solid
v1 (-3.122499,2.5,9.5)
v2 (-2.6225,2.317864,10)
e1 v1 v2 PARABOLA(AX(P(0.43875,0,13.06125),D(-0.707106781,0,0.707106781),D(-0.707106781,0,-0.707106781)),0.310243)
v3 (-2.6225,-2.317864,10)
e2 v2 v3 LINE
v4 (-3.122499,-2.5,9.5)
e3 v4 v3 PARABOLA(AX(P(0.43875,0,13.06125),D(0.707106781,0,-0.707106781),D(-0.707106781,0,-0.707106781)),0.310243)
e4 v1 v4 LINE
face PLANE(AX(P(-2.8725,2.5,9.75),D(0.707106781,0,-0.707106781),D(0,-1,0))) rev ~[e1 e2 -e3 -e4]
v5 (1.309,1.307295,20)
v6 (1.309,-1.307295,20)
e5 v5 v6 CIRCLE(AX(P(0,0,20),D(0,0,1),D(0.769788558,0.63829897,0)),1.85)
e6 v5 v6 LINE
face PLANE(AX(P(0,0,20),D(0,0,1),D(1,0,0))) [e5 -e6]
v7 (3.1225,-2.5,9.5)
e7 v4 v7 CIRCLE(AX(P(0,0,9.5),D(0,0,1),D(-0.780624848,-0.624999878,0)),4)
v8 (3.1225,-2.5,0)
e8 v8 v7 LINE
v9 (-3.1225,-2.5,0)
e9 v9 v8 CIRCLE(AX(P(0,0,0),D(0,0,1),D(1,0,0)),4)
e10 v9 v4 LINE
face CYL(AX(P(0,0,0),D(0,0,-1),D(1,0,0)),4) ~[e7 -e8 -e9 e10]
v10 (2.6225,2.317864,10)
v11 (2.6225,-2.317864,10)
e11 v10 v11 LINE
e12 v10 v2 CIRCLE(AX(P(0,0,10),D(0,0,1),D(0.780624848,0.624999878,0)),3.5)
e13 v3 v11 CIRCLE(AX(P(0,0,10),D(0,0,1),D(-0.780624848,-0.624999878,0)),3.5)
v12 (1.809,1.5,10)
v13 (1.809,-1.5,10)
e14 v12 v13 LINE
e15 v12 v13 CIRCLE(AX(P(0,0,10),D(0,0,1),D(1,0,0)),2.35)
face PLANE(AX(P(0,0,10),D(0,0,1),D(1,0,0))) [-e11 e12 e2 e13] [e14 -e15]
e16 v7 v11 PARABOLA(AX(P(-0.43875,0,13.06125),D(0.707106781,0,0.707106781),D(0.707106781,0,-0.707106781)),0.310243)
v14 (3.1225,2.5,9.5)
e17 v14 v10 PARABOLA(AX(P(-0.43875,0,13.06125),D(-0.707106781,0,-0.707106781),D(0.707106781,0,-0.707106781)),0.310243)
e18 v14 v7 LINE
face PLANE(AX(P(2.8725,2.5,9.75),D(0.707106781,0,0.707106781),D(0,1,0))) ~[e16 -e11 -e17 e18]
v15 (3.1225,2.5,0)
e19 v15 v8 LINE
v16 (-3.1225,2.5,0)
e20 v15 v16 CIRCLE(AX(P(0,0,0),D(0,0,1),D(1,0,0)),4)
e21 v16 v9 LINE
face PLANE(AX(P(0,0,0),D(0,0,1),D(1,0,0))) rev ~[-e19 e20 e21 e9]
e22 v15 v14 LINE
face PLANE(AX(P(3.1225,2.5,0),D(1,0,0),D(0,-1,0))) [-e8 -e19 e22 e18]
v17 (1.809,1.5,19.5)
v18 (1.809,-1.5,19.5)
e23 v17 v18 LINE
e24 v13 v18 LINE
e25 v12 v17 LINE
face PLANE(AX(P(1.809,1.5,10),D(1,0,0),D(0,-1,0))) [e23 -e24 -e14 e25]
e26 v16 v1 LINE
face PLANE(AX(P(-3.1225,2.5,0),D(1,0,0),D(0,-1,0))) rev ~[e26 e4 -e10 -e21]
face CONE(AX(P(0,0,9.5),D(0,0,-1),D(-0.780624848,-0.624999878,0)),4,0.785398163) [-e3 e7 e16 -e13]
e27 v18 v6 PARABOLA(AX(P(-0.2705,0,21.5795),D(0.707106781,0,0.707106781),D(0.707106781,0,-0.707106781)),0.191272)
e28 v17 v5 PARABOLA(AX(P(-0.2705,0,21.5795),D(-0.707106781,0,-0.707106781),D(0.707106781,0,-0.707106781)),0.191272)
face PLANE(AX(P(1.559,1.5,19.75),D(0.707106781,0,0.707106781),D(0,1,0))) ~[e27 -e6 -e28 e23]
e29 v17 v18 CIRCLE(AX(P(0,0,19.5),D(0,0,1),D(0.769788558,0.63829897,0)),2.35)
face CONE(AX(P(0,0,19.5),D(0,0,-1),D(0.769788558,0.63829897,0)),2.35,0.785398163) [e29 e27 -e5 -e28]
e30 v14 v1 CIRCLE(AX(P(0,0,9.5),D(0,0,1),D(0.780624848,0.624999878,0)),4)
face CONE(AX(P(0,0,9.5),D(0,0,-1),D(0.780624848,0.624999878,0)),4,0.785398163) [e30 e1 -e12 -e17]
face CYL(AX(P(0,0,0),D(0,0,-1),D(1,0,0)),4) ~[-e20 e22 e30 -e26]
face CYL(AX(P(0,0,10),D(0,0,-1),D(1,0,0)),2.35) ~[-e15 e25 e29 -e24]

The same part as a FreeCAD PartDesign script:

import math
import FreeCAD as App
import Part
import Sketcher

V = App.Vector


def edges_at(feature, points):
    """Names of the edges that pass closest to the given points."""
    edges = feature.Shape.Edges
    near = lambda p: min(range(len(edges)), key=lambda i: edges[i].distToShape(Part.Vertex(*p))[0])
    return sorted({f"Edge{near(p) + 1}" for p in points})

doc = App.newDocument("Part")
body = doc.addObject("PartDesign::Body", "Body")

# Sketch on XY plane
sketch1 = body.newObject("Sketcher::SketchObject", "Sketch")
sketch1.AttachmentSupport = (doc.getObject("XY_Plane"), [""])
sketch1.MapMode = "FlatFace"
sketch1.addGeometry([
    Part.LineSegment(V(3.1, -2.5, 0), V(3.1, 2.5, 0)),
    Part.ArcOfCircle(Part.Circle(V(0, 0, 0), V(0, 0, 1), 4), math.radians(39), math.radians(141)),
    Part.LineSegment(V(-3.1, 2.5, 0), V(-3.1, -2.5, 0)),
    Part.ArcOfCircle(Part.Circle(V(0, 0, 0), V(0, 0, 1), 4), math.radians(-141), math.radians(-39)),
], False)
sketch1.addConstraint([
    Sketcher.Constraint("Coincident", 0, 2, 1, 1),
    Sketcher.Constraint("Coincident", 1, 2, 2, 1),
    Sketcher.Constraint("Coincident", 2, 2, 3, 1),
    Sketcher.Constraint("Coincident", 3, 2, 0, 1),
    Sketcher.Constraint("Vertical", 0),
    Sketcher.Constraint("Vertical", 2),
    Sketcher.Constraint("Coincident", 1, 3, -1, 1),
    Sketcher.Constraint("Coincident", 3, 3, -1, 1),
    Sketcher.Constraint("Equal", 1, 3),
    Sketcher.Constraint("Horizontal", 0, 2, 1, 2),
    Sketcher.Constraint("Radius", 1, 4.0),
    Sketcher.Constraint("DistanceY", 0, 1, 0, 2, 5.0),
])
pad1 = body.newObject("PartDesign::Pad", "Pad")
pad1.Profile = sketch1
pad1.Length = 10

# Sketch on XY plane
sketch2 = body.newObject("Sketcher::SketchObject", "Sketch001")
sketch2.AttachmentSupport = (doc.getObject("XY_Plane"), [""])
sketch2.MapMode = "FlatFace"
sketch2.AttachmentOffset = App.Placement(V(0, 0, 10), App.Rotation())
sketch2.addGeometry([
    Part.LineSegment(V(1.8, -1.5, 0), V(1.8, 1.5, 0)),
    Part.ArcOfCircle(Part.Circle(V(0, 0, 0), V(0, 0, 1), 2.4), math.radians(40), math.radians(320)),
], False)
sketch2.addConstraint([
    Sketcher.Constraint("Coincident", 0, 1, 1, 2),
    Sketcher.Constraint("Coincident", 1, 1, 0, 2),
    Sketcher.Constraint("Vertical", 0),
    Sketcher.Constraint("Coincident", 1, 3, -1, 1),
    Sketcher.Constraint("DistanceY", 0, 1, 0, 2, 3.0),
    Sketcher.Constraint("Radius", 1, 2.35),
])
pad2 = body.newObject("PartDesign::Pad", "Pad001")
pad2.Profile = sketch2
pad2.Length = 10
doc.recompute()

chamfer = body.newObject("PartDesign::Chamfer", "Chamfer")
chamfer.Base = (pad2, edges_at(pad2, [
    (1.809, 0, 20),
    (-2.35, 0, 20),
    (3.123, 0, 10),
    (0, 4, 10),
    (0, -4, 10),
    (-3.123, 0, 10),
]))
chamfer.Size = 0.5

doc.recompute()
